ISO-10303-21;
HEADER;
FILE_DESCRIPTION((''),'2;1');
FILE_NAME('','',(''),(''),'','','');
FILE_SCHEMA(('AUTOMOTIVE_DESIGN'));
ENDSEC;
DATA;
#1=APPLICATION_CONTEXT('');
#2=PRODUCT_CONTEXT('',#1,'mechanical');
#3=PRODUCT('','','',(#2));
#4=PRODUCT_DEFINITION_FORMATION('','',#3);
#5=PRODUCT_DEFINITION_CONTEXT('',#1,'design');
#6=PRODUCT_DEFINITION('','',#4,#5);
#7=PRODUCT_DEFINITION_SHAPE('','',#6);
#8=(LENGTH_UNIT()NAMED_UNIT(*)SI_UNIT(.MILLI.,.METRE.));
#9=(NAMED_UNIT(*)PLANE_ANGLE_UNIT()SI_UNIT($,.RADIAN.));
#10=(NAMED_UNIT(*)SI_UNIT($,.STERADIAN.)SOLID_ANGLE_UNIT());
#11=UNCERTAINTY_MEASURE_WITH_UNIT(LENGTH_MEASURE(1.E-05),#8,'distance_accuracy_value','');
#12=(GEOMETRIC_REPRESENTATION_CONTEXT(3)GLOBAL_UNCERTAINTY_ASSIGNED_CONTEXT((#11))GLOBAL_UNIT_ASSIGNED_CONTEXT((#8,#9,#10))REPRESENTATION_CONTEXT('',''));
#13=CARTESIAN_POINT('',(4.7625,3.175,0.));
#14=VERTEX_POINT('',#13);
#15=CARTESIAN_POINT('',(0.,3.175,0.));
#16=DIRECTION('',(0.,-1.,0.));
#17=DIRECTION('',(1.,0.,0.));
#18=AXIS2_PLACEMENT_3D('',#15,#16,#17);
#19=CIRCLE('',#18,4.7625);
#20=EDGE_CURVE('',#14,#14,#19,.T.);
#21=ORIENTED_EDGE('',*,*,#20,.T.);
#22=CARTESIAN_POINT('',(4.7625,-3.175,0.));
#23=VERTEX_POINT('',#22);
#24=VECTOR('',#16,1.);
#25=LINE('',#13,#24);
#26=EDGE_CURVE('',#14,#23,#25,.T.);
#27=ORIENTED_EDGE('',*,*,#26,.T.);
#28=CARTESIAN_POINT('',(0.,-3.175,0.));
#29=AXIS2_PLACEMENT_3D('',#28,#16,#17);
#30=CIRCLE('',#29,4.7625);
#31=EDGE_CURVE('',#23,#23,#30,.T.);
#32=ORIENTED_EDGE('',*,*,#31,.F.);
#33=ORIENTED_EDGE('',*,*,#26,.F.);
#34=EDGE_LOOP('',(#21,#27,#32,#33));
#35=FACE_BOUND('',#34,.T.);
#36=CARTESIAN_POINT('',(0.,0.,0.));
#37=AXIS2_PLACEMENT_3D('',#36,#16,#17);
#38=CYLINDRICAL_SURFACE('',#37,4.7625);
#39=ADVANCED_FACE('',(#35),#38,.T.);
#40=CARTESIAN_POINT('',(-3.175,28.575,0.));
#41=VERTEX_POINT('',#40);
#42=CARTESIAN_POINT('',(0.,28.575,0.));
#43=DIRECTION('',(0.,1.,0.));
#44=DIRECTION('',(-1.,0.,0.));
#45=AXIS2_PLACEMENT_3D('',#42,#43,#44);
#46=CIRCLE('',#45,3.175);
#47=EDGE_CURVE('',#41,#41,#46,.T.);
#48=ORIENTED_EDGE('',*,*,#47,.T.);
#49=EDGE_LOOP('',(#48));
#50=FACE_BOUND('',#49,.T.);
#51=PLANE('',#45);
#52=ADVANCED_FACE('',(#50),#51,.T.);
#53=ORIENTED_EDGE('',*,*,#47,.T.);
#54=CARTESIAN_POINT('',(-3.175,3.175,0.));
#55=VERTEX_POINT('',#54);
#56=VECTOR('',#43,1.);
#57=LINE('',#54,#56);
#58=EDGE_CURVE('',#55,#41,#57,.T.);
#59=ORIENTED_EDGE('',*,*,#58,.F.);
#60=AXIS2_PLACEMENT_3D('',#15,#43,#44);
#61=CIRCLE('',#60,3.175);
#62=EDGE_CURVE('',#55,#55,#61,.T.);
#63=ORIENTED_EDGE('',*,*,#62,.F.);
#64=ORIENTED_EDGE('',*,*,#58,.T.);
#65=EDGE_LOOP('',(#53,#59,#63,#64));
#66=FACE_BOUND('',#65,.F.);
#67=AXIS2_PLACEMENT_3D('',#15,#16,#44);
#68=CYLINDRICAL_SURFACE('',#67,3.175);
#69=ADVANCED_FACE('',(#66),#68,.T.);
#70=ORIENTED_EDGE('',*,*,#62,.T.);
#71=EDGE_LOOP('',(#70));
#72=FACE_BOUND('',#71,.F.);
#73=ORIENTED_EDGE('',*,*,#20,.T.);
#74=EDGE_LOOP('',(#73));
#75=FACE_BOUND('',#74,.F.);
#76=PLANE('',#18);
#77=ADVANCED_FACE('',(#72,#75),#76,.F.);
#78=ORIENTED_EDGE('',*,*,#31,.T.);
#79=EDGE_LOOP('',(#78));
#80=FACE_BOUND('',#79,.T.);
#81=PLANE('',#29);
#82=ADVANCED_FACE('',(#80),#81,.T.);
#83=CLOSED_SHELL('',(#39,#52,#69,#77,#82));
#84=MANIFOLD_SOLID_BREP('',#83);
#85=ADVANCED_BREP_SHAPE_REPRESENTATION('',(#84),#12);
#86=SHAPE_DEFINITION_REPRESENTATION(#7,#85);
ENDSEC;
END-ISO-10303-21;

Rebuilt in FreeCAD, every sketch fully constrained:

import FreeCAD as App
import Part
import Sketcher

V = App.Vector
Q = App.Units.Quantity

doc = App.newDocument("Part")
body = doc.addObject("PartDesign::Body", "Body")

# Sketch on XZ plane
sketch1 = body.newObject("Sketcher::SketchObject", "Sketch")
sketch1.AttachmentSupport = (doc.getObject("XZ_Plane"), [""])
sketch1.MapMode = "FlatFace"
sketch1.addGeometry(Part.Circle(V(0, 0, 0), V(0, 0, 1), 4.8), False)
sketch1.addConstraint([
    Sketcher.Constraint("Coincident", 0, 3, -1, 1),
    Sketcher.Constraint("Diameter", 0, Q("0.375 in")),
])
pad1 = body.newObject("PartDesign::Pad", "Pad")
pad1.Profile = sketch1
pad1.Length = Q("0.25 in")
pad1.Midplane = True

# Sketch on XZ plane
sketch2 = body.newObject("Sketcher::SketchObject", "Sketch001")
sketch2.AttachmentSupport = (doc.getObject("XZ_Plane"), [""])
sketch2.MapMode = "FlatFace"
sketch2.AttachmentOffset = App.Placement(V(0, 0, -0.125 * 25.4), App.Rotation())
sketch2.addGeometry(Part.Circle(V(0, 0, 0), V(0, 0, 1), 3.2), False)
sketch2.addConstraint([
    Sketcher.Constraint("Coincident", 0, 3, -1, 1),
    Sketcher.Constraint("Diameter", 0, Q("0.25 in")),
])
pad2 = body.newObject("PartDesign::Pad", "Pad001")
pad2.Profile = sketch2
pad2.Length = Q("1 in")
pad2.Reversed = True

doc.recompute()
